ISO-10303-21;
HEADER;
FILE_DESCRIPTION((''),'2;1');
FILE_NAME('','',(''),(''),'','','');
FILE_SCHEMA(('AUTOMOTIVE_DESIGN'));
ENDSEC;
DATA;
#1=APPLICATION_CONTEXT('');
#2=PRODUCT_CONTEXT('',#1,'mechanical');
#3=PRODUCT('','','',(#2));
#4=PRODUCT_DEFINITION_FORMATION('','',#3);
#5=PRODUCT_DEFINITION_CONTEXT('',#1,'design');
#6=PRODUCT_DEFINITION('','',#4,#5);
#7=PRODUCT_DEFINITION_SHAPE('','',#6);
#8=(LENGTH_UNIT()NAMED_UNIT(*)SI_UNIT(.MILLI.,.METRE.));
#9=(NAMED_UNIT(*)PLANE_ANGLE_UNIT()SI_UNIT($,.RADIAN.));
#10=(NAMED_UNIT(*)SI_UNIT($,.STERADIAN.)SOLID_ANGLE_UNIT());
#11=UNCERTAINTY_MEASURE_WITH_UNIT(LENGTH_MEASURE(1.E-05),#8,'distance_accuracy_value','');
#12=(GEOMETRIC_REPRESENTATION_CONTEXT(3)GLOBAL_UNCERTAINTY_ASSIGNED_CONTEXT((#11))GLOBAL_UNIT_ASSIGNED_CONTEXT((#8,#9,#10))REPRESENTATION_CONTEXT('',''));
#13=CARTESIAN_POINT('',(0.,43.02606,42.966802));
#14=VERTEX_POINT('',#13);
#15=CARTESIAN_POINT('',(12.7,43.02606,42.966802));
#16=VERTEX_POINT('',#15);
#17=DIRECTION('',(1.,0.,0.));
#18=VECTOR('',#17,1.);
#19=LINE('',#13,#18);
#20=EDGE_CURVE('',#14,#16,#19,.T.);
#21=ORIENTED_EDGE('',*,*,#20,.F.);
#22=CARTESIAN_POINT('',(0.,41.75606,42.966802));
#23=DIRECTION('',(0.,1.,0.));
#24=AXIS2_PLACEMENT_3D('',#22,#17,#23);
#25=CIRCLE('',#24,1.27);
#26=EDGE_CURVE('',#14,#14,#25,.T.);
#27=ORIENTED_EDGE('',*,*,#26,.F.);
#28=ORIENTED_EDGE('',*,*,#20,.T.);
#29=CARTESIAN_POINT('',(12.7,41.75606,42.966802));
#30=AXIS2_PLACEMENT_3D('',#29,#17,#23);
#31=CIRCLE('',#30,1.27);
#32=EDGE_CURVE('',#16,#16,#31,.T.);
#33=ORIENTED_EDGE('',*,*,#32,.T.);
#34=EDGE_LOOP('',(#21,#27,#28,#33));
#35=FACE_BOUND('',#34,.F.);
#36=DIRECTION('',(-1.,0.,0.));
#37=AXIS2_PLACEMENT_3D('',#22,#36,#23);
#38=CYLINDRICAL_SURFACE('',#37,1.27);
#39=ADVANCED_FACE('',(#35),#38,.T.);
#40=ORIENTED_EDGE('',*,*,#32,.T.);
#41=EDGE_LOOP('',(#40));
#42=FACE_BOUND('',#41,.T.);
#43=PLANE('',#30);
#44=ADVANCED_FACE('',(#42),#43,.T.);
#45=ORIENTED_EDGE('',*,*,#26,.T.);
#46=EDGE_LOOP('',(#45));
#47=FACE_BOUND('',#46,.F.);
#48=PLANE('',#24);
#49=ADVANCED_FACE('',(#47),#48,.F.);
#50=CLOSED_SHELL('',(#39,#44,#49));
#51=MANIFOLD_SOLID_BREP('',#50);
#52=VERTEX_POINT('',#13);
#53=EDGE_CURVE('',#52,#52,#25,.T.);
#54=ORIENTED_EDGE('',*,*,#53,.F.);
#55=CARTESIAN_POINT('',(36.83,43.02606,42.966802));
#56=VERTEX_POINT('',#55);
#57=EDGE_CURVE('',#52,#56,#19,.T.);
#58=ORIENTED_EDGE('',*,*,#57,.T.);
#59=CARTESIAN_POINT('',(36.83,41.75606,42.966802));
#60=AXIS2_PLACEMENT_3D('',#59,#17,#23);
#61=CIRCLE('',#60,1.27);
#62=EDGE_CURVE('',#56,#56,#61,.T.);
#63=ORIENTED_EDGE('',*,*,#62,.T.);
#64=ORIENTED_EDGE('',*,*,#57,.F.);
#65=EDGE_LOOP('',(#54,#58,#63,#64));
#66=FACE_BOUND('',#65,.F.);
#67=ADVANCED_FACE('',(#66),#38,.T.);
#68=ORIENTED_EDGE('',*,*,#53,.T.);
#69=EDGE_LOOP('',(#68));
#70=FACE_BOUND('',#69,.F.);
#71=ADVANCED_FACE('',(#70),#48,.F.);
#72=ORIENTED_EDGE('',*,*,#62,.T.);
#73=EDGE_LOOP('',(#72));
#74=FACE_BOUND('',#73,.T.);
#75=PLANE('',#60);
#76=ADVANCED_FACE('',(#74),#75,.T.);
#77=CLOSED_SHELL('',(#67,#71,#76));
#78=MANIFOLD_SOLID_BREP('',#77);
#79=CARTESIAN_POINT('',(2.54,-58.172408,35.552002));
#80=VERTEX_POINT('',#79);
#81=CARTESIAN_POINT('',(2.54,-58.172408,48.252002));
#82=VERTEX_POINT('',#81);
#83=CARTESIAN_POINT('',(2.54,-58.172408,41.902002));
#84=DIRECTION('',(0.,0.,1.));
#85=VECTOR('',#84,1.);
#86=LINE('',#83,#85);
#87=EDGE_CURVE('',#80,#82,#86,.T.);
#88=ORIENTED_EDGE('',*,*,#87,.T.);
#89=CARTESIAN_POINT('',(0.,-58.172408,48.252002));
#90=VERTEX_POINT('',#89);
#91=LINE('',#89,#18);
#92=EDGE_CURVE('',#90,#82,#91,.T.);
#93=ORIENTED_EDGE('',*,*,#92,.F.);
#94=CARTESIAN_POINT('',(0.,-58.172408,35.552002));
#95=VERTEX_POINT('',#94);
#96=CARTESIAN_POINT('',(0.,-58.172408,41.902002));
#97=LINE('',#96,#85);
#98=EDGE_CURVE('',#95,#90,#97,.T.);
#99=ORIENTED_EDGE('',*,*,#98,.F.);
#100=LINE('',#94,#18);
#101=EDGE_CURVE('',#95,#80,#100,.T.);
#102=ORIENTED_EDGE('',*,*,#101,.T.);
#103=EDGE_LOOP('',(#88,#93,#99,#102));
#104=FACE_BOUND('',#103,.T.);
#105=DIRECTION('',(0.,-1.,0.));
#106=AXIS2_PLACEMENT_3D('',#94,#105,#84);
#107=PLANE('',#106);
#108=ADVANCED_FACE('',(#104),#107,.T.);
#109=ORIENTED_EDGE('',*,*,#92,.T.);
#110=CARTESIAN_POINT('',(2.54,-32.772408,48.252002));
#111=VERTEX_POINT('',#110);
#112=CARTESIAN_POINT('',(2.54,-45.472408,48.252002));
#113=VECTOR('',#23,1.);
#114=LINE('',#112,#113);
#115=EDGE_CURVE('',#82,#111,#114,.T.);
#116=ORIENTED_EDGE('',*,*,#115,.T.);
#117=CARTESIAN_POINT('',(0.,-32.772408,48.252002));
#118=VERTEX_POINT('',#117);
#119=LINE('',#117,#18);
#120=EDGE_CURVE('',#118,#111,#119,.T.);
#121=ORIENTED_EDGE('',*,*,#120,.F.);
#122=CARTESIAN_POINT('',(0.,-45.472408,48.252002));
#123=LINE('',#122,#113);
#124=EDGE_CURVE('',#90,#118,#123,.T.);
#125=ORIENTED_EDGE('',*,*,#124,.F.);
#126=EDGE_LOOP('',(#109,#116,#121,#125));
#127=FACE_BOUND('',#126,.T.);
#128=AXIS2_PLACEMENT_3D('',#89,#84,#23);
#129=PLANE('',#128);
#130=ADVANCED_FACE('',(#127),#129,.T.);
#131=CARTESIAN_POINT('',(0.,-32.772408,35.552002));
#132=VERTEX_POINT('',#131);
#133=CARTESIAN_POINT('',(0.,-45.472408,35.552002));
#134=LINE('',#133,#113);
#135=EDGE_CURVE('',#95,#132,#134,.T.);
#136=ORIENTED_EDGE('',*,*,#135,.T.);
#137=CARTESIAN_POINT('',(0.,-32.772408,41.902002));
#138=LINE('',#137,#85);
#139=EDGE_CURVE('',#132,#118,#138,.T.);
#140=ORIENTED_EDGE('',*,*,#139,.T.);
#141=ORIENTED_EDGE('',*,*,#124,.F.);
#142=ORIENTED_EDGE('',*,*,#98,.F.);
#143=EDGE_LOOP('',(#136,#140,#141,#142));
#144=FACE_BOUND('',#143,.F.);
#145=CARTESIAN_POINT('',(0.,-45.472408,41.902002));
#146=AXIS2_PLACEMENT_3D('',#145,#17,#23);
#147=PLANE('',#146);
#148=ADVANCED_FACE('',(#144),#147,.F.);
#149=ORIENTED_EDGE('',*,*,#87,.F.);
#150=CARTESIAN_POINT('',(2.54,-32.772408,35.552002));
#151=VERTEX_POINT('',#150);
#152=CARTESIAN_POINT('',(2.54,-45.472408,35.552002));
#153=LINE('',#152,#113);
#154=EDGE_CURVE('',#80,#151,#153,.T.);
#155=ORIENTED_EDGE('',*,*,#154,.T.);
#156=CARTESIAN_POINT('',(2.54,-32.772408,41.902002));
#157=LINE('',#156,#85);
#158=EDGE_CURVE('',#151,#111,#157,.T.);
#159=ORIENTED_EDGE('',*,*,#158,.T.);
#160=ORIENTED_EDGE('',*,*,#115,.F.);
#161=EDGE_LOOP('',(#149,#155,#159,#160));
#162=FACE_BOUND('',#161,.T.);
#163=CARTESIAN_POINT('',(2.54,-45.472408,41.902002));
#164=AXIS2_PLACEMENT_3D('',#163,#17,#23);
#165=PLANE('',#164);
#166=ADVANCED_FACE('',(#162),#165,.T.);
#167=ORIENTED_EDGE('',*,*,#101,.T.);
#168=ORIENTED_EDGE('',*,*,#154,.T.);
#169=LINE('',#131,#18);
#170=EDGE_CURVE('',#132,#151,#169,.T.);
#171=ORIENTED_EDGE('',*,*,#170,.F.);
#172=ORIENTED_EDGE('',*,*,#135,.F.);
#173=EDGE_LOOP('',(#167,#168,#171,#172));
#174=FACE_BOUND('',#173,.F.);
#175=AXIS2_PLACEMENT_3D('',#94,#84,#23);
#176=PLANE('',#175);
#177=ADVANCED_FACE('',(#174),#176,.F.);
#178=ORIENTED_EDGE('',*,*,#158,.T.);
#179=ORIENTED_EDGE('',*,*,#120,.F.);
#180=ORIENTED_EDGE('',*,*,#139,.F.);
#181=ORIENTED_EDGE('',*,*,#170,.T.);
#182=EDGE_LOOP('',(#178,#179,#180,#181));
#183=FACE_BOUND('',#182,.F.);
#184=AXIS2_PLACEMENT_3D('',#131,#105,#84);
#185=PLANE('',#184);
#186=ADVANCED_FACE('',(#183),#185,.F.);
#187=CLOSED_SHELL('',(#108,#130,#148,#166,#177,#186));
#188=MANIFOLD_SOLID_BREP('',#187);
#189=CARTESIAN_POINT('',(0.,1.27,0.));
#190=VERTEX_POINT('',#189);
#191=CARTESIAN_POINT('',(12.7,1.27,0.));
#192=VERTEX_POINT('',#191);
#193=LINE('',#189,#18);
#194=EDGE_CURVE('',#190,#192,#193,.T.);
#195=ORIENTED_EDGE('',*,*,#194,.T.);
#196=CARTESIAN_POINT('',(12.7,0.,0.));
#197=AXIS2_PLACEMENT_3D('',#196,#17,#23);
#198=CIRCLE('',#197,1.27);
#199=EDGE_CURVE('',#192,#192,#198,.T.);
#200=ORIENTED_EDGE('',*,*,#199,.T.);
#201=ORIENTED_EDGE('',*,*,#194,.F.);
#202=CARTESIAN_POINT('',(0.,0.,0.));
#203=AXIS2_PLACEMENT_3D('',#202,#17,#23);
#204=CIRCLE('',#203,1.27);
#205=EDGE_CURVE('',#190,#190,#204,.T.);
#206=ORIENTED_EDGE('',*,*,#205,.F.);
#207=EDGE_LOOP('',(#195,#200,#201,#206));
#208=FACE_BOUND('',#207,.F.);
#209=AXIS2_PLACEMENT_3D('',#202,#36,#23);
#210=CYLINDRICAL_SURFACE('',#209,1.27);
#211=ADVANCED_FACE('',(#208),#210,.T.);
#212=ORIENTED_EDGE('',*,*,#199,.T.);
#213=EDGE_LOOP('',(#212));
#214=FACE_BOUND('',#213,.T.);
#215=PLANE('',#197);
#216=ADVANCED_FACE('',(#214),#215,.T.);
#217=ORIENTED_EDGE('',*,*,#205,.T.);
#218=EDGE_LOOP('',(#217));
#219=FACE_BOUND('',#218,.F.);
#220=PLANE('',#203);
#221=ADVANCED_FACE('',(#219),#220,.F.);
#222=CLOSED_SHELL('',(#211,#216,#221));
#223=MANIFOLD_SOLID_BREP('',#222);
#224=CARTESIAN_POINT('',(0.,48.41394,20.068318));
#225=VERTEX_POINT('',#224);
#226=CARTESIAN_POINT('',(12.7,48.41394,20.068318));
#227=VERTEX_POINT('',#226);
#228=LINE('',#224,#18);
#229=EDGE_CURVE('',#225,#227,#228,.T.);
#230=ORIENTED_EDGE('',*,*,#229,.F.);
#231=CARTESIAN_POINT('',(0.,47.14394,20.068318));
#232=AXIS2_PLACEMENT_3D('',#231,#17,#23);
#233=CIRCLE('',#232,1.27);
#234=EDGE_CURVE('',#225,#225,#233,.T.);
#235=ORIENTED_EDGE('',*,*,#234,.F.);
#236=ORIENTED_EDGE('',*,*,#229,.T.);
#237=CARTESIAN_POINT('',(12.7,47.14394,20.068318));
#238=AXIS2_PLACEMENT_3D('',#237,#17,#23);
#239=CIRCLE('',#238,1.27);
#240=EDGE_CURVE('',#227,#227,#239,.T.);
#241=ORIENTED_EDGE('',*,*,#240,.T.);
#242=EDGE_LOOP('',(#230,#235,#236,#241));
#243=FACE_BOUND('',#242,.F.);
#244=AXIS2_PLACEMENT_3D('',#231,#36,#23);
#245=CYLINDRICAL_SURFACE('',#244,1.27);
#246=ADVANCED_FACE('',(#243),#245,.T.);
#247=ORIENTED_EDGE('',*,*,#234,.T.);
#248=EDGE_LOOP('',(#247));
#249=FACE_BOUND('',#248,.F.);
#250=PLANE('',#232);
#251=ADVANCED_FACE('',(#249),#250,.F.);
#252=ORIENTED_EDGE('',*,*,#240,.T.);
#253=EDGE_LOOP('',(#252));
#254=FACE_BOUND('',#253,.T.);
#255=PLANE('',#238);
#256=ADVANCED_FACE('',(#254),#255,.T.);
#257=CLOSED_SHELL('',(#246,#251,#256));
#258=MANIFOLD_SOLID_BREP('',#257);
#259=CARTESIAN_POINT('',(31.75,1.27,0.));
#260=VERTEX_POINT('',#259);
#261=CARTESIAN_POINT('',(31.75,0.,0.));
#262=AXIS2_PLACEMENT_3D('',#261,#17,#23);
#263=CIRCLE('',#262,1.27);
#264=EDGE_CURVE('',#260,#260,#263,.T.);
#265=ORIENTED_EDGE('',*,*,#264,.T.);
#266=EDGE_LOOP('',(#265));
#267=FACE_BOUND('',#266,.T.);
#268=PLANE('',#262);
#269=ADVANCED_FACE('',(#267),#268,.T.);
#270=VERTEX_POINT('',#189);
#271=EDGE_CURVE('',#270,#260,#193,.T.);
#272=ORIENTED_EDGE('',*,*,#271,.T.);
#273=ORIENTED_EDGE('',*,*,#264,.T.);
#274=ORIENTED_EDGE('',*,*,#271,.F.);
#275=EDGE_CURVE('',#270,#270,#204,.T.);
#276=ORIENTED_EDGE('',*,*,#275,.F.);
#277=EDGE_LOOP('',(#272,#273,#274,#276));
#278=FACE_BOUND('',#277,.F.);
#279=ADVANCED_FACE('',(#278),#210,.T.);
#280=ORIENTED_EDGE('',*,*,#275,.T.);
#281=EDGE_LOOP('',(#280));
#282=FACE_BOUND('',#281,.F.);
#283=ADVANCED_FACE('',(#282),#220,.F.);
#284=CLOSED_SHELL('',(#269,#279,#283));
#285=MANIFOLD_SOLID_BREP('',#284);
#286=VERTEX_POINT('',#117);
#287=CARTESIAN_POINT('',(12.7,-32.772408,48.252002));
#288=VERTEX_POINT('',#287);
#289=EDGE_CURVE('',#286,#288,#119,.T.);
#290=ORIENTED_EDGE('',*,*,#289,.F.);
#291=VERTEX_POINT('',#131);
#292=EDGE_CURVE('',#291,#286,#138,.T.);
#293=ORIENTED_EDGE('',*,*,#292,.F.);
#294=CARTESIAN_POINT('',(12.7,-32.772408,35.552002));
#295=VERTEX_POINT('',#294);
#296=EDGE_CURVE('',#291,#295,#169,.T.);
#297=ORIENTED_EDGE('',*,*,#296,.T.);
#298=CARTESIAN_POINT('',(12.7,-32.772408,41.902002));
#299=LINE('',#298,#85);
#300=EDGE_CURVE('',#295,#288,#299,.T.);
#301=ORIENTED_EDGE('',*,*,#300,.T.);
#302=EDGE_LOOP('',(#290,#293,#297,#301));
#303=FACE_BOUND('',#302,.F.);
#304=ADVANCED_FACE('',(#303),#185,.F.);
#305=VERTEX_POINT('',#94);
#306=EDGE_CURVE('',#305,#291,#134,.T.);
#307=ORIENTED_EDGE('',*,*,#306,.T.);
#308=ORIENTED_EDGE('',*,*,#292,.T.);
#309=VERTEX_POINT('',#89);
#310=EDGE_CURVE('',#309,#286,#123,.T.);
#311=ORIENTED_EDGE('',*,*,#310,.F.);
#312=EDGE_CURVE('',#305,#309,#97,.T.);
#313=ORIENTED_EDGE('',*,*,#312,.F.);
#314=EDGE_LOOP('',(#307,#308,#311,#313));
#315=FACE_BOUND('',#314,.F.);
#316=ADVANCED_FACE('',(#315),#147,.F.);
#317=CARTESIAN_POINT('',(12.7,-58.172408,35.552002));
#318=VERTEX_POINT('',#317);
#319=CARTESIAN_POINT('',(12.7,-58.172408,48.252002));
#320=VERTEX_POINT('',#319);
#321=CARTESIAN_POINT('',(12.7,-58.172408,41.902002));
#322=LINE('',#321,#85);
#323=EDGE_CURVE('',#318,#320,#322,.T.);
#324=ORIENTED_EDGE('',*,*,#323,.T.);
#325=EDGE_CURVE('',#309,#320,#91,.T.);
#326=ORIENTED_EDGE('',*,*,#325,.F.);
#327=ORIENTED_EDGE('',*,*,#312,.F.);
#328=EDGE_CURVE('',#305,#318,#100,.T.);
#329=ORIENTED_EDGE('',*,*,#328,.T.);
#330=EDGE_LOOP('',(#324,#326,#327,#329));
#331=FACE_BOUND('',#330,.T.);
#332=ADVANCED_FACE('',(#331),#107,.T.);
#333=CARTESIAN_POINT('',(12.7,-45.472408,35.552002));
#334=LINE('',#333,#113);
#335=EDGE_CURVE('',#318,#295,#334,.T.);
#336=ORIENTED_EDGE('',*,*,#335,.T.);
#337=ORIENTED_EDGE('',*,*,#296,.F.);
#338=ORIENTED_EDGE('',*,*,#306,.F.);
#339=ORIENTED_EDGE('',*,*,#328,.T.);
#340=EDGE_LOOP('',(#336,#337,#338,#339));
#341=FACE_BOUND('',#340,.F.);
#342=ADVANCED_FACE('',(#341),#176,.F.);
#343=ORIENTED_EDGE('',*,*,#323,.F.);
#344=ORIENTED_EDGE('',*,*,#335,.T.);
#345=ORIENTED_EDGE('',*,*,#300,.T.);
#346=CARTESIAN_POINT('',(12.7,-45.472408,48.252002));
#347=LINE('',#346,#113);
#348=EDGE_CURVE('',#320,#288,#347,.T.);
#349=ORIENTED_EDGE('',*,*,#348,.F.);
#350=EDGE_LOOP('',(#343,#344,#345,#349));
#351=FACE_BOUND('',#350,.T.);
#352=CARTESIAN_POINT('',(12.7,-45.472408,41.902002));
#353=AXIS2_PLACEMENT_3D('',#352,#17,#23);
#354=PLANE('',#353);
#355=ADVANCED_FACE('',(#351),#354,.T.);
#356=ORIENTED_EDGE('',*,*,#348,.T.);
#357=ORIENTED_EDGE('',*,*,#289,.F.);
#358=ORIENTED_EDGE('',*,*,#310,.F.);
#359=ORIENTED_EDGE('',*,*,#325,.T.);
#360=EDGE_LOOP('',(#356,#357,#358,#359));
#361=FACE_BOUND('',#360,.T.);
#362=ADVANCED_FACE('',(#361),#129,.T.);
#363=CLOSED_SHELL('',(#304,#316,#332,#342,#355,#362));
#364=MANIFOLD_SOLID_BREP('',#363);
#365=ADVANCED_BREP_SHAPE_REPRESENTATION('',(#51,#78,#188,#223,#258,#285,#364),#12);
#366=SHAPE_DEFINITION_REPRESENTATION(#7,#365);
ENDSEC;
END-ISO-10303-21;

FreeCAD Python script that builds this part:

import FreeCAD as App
import Part
import Sketcher
Q = App.Units.Quantity

doc = App.newDocument("Part")
params = doc.addObject("Spreadsheet::Sheet", "Params")
for row, (alias, value) in enumerate([
    ("sketch1_diameter", "0.1 in"),
    ("pad1_length", "1.25 in"),
    ("sketch2_diameter", "0.1 in"),
    ("pad2_length", "1.45 in"),
    ("sketch3_width", "1 in"),
    ("sketch3_height", "0.5 in"),
    ("pad3_length", "0.1 in"),
    ("sketch4_diameter", "0.1 in"),
    ("sketch4_width", "1 in"),
    ("sketch4_height", "0.5 in"),
    ("pad4_length", "0.5 in"),
], start=1):
    params.set(f"A{row}", alias)
    params.set(f"B{row}", "=" + value)
    params.setAlias(f"B{row}", alias)

body = doc.addObject("PartDesign::Body", "Body")

# Sketch on YZ plane
sketch1 = doc.addObject("Sketcher::SketchObject", "Sketch")
body.addObject(sketch1)
sketch1.AttachmentSupport = (doc.YZ_Plane, [""])
sketch1.MapMode = "FlatFace"
sketch1.addGeometry(Part.Circle(App.Vector(0, 0, 0), App.Vector(0, 0, 1), 1.3), False)
sketch1.addConstraint([
    Sketcher.Constraint("Coincident", 0, 3, -1, 1),
    Sketcher.Constraint("Diameter", 0, Q("0.1 in")),
])
sketch1.setExpression("Constraints[1]", "Params.sketch1_diameter")
pad1 = doc.addObject("PartDesign::Pad", "Pad")
body.addObject(pad1)
pad1.Profile = sketch1
pad1.setExpression("Length", "Params.pad1_length")
body2 = doc.addObject("PartDesign::Body", "Body001")

# Sketch on YZ plane
sketch2 = doc.addObject("Sketcher::SketchObject", "Sketch001")
body2.addObject(sketch2)
sketch2.AttachmentSupport = (doc.getObject("YZ_Plane001"), [""])
sketch2.MapMode = "FlatFace"
sketch2.addGeometry(Part.Circle(App.Vector(41.8, 43, 0), App.Vector(0, 0, 1), 1.3), False)
sketch2.addConstraint([
    Sketcher.Constraint("Diameter", 0, Q("0.1 in")),
    Sketcher.Constraint("DistanceX", -1, 1, 0, 3, Q("41.75606 mm")),
    Sketcher.Constraint("DistanceY", -1, 1, 0, 3, Q("42.966802 mm")),
])
sketch2.setExpression("Constraints[0]", "Params.sketch2_diameter")
pad2 = doc.addObject("PartDesign::Pad", "Pad001")
body2.addObject(pad2)
pad2.Profile = sketch2
pad2.setExpression("Length", "Params.pad2_length")
body3 = doc.addObject("PartDesign::Body", "Body002")

# Sketch on YZ plane
sketch3 = doc.addObject("Sketcher::SketchObject", "Sketch002")
body3.addObject(sketch3)
sketch3.AttachmentSupport = (doc.getObject("YZ_Plane002"), [""])
sketch3.MapMode = "FlatFace"
sketch3.addGeometry([
    Part.LineSegment(App.Vector(-58, 48, 0), App.Vector(-58, 36, 0)),
    Part.LineSegment(App.Vector(-58, 36, 0), App.Vector(-33, 36, 0)),
    Part.LineSegment(App.Vector(-33, 36, 0), App.Vector(-33, 48, 0)),
    Part.LineSegment(App.Vector(-33, 48, 0), App.Vector(-58, 48, 0)),
], False)
sketch3.addConstraint([
    Sketcher.Constraint("Coincident", 0, 2, 1, 1),
    Sketcher.Constraint("Coincident", 1, 2, 2, 1),
    Sketcher.Constraint("Coincident", 2, 2, 3, 1),
    Sketcher.Constraint("Coincident", 3, 2, 0, 1),
    Sketcher.Constraint("Vertical", 0),
    Sketcher.Constraint("Horizontal", 1),
    Sketcher.Constraint("Vertical", 2),
    Sketcher.Constraint("Horizontal", 3),
    Sketcher.Constraint("DistanceX", 1, 1, 1, 2, Q("1 in")),
    Sketcher.Constraint("DistanceY", 0, 2, 0, 1, Q("0.5 in")),
    Sketcher.Constraint("DistanceY", -1, 1, 2, 2, Q("48.252002 mm")),
    Sketcher.Constraint("DistanceX", 0, 2, -1, 1, Q("58.172408 mm")),
])
sketch3.setExpression("Constraints[8]", "Params.sketch3_width")
sketch3.setExpression("Constraints[9]", "Params.sketch3_height")
pad3 = doc.addObject("PartDesign::Pad", "Pad002")
body3.addObject(pad3)
pad3.Profile = sketch3
pad3.setExpression("Length", "Params.pad3_length")
body4 = doc.addObject("PartDesign::Body", "Body003")
body4.AllowCompound = True

# Sketch on YZ plane
sketch4 = doc.addObject("Sketcher::SketchObject", "Sketch003")
body4.addObject(sketch4)
sketch4.AttachmentSupport = (doc.getObject("YZ_Plane003"), [""])
sketch4.MapMode = "FlatFace"
sketch4.addGeometry([
    Part.Circle(App.Vector(0, 0, 0), App.Vector(0, 0, 1), 1.3),  # 0
    Part.Circle(App.Vector(41.8, 43, 0), App.Vector(0, 0, 1), 1.3),  # 1
    Part.LineSegment(App.Vector(-58.2, 48.3, 0), App.Vector(-58.2, 35.6, 0)),  # 2
    Part.LineSegment(App.Vector(-58.2, 35.6, 0), App.Vector(-32.8, 35.6, 0)),  # 3
    Part.LineSegment(App.Vector(-32.8, 35.6, 0), App.Vector(-32.8, 48.3, 0)),  # 4
    Part.LineSegment(App.Vector(-32.8, 48.3, 0), App.Vector(-58.2, 48.3, 0)),  # 5
    Part.Circle(App.Vector(47.1, 20.1, 0), App.Vector(0, 0, 1), 1.3),  # 6
], False)
sketch4.addConstraint([
    Sketcher.Constraint("Coincident", 2, 2, 3, 1),
    Sketcher.Constraint("Coincident", 3, 2, 4, 1),
    Sketcher.Constraint("Coincident", 4, 2, 5, 1),
    Sketcher.Constraint("Coincident", 5, 2, 2, 1),
    Sketcher.Constraint("Vertical", 2),
    Sketcher.Constraint("Horizontal", 3),
    Sketcher.Constraint("Vertical", 4),
    Sketcher.Constraint("Horizontal", 5),
    Sketcher.Constraint("Coincident", 0, 3, -1, 1),
    Sketcher.Constraint("Equal", 0, 1),
    Sketcher.Constraint("Equal", 1, 6),
    Sketcher.Constraint("Diameter", 0, Q("0.1 in")),
    Sketcher.Constraint("DistanceX", 3, 1, 3, 2, Q("1 in")),
    Sketcher.Constraint("DistanceY", 2, 2, 2, 1, Q("0.5 in")),
    Sketcher.Constraint("DistanceY", -1, 1, 4, 2, Q("48.252002 mm")),
    Sketcher.Constraint("DistanceY", 2, 2, 1, 3, Q("7.4148 mm")),
    Sketcher.Constraint("DistanceX", -1, 1, 1, 3, Q("41.75606 mm")),
    Sketcher.Constraint("DistanceX", -1, 1, 6, 3, Q("47.14394 mm")),
    Sketcher.Constraint("DistanceY", -1, 1, 6, 3, Q("20.068318 mm")),
    Sketcher.Constraint("DistanceX", 2, 2, 6, 3, Q("105.316348 mm")),
])
sketch4.setExpression("Constraints[11]", "Params.sketch4_diameter")
sketch4.setExpression("Constraints[12]", "Params.sketch4_width")
sketch4.setExpression("Constraints[13]", "Params.sketch4_height")
pad4 = doc.addObject("PartDesign::Pad", "Pad003")
body4.addObject(pad4)
pad4.Profile = sketch4
pad4.setExpression("Length", "Params.pad4_length")

doc.recompute()
